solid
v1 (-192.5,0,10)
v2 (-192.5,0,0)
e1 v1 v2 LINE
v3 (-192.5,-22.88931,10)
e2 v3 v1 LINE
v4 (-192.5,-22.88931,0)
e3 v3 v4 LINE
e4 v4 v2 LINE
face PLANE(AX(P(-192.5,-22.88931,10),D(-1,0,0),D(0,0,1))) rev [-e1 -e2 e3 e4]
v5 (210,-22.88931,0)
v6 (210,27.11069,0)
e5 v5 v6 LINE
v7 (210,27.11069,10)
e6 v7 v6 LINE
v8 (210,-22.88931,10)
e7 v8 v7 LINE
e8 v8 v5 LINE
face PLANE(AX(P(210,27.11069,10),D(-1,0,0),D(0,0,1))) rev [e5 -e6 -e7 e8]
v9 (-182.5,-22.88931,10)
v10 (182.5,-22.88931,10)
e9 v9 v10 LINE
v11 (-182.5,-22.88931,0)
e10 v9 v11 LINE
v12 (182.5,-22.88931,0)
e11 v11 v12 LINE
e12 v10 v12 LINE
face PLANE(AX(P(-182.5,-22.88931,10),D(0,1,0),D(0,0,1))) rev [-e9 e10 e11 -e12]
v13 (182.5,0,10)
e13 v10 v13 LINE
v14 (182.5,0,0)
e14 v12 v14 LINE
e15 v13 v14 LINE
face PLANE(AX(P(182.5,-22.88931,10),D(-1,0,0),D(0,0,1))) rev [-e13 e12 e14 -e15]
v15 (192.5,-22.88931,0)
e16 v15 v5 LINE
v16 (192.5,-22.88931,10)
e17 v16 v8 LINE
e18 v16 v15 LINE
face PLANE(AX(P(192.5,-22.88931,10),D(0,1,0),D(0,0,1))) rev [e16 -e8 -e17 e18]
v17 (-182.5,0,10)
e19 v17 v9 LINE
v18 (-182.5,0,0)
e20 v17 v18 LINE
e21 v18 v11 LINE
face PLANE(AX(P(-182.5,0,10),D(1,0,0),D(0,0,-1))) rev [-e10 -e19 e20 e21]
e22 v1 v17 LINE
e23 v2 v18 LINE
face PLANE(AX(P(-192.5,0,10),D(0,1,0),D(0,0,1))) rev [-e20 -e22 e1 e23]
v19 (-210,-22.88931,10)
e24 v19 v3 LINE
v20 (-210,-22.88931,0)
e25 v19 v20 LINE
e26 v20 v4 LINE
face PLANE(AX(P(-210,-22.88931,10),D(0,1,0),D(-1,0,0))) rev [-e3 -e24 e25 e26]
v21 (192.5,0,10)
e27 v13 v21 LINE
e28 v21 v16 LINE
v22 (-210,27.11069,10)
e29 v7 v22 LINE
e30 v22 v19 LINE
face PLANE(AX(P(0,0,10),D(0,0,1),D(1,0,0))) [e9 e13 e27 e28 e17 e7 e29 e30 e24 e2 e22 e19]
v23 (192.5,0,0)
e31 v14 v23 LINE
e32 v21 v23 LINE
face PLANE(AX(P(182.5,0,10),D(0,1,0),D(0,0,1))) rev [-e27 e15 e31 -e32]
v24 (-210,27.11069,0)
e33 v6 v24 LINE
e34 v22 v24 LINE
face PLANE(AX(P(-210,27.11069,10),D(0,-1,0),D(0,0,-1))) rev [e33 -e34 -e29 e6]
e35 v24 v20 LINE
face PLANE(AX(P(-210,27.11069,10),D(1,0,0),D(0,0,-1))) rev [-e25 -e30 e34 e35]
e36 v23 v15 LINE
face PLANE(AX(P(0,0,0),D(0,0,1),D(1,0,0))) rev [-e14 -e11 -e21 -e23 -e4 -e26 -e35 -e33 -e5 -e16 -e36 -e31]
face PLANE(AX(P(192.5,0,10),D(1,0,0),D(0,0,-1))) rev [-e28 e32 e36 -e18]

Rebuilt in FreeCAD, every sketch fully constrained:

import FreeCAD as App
import Part
import Sketcher

V = App.Vector
Q = App.Units.Quantity


def add_polygon(sketch, points):
    """Adds a closed chain of lines whose ends are joined by coincident constraints."""
    first, n = sketch.GeometryCount, len(points)
    for a, b in zip(points, points[1:] + points[:1]):
        sketch.addGeometry(Part.LineSegment(App.Vector(*a, 0), App.Vector(*b, 0)), False)
    for i in range(n):
        sketch.addConstraint(Sketcher.Constraint("Coincident", first + i, 2, first + (i + 1) % n, 1))

doc = App.newDocument("Part")
body = doc.addObject("PartDesign::Body", "Body")

# Sketch on XY plane
sketch1 = doc.addObject("Sketcher::SketchObject", "Sketch")
body.addObject(sketch1)
sketch1.AttachmentSupport = (doc.XY_Plane, [""])
sketch1.MapMode = "FlatFace"
add_polygon(sketch1, [(-192, -23), (-192, 0), (-182, 0), (-182, -23), (182, -23), (182, 0), (192, 0), (192, -23), (210, -23), (210, 27), (-210, 27), (-210, -23)])  # lines 0-11
sketch1.addConstraint([
    Sketcher.Constraint("Vertical", 0),
    Sketcher.Constraint("Horizontal", 1),
    Sketcher.Constraint("Vertical", 2),
    Sketcher.Constraint("Horizontal", 3),
    Sketcher.Constraint("Vertical", 4),
    Sketcher.Constraint("Horizontal", 5),
    Sketcher.Constraint("Vertical", 6),
    Sketcher.Constraint("Horizontal", 7),
    Sketcher.Constraint("Vertical", 8),
    Sketcher.Constraint("Horizontal", 9),
    Sketcher.Constraint("Vertical", 10),
    Sketcher.Constraint("Horizontal", 11),
    Sketcher.Constraint("Symmetric", 1, 2, 4, 2, -1, 1),
    Sketcher.Constraint("Symmetric", 0, 2, 5, 2, -2),
    Sketcher.Constraint("Symmetric", 7, 2, 10, 2, -2),
    Sketcher.Constraint("Horizontal", 3, 2, 6, 2),
    Sketcher.Constraint("DistanceX", 1, 1, 1, 2, Q("10 mm")),
    Sketcher.Constraint("DistanceX", 3, 1, 3, 2, Q("365 mm")),
    Sketcher.Constraint("DistanceX", 9, 2, 9, 1, Q("420 mm")),
    Sketcher.Constraint("DistanceY", 8, 1, 8, 2, Q("50 mm")),
    Sketcher.Constraint("DistanceY", 0, 1, 0, 2, Q("22.88931 mm")),
])
pad1 = doc.addObject("PartDesign::Pad", "Pad")
body.addObject(pad1)
pad1.Profile = sketch1
pad1.Length = 10

doc.recompute()
